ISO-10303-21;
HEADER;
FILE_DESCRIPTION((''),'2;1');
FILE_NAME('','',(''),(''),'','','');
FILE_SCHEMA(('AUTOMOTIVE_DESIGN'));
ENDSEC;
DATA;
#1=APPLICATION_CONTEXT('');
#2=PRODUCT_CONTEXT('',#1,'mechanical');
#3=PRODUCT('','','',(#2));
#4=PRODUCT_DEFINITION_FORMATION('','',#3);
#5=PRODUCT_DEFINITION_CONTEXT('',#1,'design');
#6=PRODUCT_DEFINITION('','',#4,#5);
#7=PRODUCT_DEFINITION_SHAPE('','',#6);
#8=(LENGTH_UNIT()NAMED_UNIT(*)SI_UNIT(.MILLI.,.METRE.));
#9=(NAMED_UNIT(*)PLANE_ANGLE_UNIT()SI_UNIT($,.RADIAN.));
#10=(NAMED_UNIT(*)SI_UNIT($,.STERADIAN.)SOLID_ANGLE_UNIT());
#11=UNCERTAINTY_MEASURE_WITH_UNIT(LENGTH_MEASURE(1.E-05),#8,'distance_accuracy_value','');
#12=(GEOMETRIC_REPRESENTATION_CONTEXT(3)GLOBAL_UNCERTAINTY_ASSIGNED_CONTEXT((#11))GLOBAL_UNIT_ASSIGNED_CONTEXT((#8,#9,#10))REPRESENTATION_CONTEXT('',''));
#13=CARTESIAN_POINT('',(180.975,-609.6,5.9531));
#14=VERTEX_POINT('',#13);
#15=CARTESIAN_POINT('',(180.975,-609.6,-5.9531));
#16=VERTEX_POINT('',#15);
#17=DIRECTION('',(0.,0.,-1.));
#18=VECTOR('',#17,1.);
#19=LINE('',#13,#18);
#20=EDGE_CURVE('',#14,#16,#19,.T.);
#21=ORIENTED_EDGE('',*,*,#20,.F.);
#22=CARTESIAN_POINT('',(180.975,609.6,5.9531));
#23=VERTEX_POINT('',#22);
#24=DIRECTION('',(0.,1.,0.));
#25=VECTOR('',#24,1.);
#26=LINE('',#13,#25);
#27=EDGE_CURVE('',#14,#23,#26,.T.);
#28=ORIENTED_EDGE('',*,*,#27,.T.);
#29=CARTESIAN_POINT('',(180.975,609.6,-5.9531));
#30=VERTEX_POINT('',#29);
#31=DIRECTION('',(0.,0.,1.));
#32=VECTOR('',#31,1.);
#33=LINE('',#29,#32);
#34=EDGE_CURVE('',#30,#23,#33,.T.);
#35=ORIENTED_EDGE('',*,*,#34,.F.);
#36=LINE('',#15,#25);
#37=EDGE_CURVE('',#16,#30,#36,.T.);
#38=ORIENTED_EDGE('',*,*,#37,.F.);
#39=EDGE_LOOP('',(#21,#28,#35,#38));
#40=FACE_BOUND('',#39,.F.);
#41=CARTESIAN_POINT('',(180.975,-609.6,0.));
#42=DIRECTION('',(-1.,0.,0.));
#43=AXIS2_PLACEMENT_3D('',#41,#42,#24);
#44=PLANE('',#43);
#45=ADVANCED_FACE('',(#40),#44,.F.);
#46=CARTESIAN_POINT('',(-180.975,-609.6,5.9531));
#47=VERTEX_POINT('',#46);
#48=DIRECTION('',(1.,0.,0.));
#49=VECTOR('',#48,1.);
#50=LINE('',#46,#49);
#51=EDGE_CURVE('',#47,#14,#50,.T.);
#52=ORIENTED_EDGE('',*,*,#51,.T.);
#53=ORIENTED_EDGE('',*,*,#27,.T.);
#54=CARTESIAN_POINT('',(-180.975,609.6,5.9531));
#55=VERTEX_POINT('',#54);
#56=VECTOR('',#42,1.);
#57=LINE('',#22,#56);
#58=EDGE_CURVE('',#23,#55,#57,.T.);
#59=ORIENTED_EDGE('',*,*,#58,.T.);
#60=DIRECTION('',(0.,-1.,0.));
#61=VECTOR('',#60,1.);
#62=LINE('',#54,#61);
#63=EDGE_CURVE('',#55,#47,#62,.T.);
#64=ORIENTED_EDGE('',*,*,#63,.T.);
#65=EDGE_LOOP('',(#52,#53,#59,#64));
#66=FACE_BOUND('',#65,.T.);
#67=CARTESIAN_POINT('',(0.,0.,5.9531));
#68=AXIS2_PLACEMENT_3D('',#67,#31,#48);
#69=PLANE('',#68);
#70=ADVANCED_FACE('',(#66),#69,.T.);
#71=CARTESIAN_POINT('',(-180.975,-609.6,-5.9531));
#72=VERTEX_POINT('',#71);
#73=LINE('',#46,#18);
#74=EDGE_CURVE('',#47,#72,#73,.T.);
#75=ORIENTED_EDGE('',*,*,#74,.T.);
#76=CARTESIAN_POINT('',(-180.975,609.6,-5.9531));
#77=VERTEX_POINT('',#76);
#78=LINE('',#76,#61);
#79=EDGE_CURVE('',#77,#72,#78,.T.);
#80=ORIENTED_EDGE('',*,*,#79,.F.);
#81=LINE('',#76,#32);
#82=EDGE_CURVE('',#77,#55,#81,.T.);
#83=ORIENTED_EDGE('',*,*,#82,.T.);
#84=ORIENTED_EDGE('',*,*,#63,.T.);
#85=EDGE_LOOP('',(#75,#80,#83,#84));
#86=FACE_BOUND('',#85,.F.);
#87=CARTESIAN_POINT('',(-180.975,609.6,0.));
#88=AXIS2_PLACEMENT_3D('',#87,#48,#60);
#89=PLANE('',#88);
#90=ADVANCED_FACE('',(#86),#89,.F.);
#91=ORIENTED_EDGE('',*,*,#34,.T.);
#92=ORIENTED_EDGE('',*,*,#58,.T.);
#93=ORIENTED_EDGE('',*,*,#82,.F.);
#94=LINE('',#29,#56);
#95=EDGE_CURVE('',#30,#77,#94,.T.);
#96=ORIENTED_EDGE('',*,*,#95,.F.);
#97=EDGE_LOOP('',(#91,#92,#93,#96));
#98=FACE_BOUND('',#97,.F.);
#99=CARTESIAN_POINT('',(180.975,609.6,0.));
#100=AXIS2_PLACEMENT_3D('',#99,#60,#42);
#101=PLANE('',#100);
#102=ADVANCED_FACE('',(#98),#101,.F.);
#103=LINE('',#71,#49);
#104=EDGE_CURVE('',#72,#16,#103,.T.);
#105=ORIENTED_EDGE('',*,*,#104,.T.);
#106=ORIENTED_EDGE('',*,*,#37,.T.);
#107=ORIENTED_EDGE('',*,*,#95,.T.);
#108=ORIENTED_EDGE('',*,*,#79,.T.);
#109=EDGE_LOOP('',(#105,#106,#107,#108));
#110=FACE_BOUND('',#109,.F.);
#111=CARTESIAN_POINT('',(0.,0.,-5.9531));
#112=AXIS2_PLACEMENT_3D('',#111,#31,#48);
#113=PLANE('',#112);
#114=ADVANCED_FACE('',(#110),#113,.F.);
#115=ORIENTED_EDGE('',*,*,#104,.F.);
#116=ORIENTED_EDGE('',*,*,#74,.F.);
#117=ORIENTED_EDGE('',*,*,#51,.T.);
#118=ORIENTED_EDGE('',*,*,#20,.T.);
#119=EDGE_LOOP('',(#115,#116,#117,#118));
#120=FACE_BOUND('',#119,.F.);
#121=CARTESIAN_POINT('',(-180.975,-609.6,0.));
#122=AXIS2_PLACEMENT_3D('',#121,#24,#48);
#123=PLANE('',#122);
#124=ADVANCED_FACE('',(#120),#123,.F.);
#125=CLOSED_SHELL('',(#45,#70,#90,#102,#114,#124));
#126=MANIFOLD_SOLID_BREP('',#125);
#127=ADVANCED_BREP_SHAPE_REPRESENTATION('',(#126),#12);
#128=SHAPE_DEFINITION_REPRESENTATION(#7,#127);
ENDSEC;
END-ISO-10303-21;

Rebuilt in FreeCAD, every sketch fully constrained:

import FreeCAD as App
import Part
import Sketcher
Q = App.Units.Quantity


def add_polygon(sketch, points):
    """Adds a closed chain of lines whose ends are joined by coincident constraints."""
    first, n = sketch.GeometryCount, len(points)
    for a, b in zip(points, points[1:] + points[:1]):
        sketch.addGeometry(Part.LineSegment(App.Vector(*a, 0), App.Vector(*b, 0)), False)
    for i in range(n):
        sketch.addConstraint(Sketcher.Constraint("Coincident", first + i, 2, first + (i + 1) % n, 1))

doc = App.newDocument("Part")
body = doc.addObject("PartDesign::Body", "Body")

# Sketch on XY plane
sketch1 = body.newObject("Sketcher::SketchObject", "Sketch")
sketch1.AttachmentSupport = (doc.getObject("XY_Plane"), [""])
sketch1.MapMode = "FlatFace"
add_polygon(sketch1, [(181, -610), (181, 610), (-181, 610), (-181, -610)])  # lines 0-3
sketch1.addConstraint([
    Sketcher.Constraint("Vertical", 0),
    Sketcher.Constraint("Horizontal", 1),
    Sketcher.Constraint("Vertical", 2),
    Sketcher.Constraint("Horizontal", 3),
    Sketcher.Constraint("Symmetric", 0, 2, 2, 2, -1, 1),
    Sketcher.Constraint("DistanceY", 0, 1, 0, 2, Q("48 in")),
    Sketcher.Constraint("DistanceX", 1, 2, 1, 1, Q("14.25 in")),
])
pad1 = body.newObject("PartDesign::Pad", "Pad")
pad1.Profile = sketch1
pad1.Length = Q("0.468748 in")
pad1.Midplane = True

doc.recompute()
